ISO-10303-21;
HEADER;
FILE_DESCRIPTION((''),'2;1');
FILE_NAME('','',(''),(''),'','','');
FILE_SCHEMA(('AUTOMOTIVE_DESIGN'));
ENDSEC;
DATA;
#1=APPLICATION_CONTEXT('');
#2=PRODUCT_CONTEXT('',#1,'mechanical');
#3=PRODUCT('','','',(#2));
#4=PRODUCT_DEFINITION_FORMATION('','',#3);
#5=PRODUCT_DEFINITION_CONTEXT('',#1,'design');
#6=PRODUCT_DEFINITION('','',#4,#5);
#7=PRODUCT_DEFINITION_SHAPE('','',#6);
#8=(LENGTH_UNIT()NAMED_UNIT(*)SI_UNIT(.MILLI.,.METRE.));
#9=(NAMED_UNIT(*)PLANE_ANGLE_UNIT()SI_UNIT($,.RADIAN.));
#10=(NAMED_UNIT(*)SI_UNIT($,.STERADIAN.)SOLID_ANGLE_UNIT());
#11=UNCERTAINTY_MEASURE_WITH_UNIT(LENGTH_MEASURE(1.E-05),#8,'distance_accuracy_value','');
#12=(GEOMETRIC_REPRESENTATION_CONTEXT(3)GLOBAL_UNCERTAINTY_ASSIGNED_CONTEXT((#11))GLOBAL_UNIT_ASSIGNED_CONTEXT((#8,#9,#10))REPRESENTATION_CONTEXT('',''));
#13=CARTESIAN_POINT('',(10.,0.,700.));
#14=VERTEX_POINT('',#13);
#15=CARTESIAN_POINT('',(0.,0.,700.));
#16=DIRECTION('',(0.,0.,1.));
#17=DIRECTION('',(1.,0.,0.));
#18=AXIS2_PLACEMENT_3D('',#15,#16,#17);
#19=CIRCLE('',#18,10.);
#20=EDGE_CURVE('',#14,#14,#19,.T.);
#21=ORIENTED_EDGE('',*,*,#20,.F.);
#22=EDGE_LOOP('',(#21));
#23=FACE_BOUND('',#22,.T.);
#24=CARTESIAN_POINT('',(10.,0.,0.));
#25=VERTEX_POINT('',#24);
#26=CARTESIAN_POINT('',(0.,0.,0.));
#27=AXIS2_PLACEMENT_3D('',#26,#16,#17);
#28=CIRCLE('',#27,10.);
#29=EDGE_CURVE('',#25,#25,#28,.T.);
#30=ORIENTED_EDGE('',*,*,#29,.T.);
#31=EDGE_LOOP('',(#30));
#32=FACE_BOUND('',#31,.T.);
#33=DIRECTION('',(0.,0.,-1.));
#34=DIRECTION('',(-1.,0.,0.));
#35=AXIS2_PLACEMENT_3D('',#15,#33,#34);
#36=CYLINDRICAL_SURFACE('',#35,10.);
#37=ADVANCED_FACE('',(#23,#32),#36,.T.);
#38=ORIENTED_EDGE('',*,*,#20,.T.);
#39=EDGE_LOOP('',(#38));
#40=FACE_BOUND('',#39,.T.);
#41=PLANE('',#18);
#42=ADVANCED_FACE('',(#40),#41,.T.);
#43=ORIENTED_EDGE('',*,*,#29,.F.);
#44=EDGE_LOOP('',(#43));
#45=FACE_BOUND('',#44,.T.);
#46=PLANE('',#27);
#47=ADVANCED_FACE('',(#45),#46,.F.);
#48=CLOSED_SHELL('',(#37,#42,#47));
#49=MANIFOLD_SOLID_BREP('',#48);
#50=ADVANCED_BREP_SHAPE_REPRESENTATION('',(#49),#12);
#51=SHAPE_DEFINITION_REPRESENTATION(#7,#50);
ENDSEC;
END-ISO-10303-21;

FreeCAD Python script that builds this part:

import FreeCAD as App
import Part
import Sketcher

V = App.Vector
Q = App.Units.Quantity

doc = App.newDocument("Part")
params = doc.addObject("Spreadsheet::Sheet", "Params")
for row, (alias, value) in enumerate([
    ("sketch1_diameter", "20 mm"),
    ("pad1_length", "700 mm"),
], start=1):
    params.set(f"A{row}", alias)
    params.set(f"B{row}", "=" + value)
    params.setAlias(f"B{row}", alias)

body = doc.addObject("PartDesign::Body", "Body")

sketch1 = body.newObject("Sketcher::SketchObject", "Sketch")
sketch1.AttachmentSupport = (doc.getObject("XY_Plane"), [""])
sketch1.MapMode = "FlatFace"
sketch1.addGeometry(Part.Circle(V(0, 0, 0), V(0, 0, 1), 10), False)
sketch1.addConstraint([
    Sketcher.Constraint("Coincident", 0, 3, -1, 1),
    Sketcher.Constraint("Diameter", 0, Q("20 mm")),
])
sketch1.setExpression("Constraints[1]", "Params.sketch1_diameter")
pad1 = body.newObject("PartDesign::Pad", "Pad")
pad1.Profile = sketch1
pad1.setExpression("Length", "Params.pad1_length")

doc.recompute()
